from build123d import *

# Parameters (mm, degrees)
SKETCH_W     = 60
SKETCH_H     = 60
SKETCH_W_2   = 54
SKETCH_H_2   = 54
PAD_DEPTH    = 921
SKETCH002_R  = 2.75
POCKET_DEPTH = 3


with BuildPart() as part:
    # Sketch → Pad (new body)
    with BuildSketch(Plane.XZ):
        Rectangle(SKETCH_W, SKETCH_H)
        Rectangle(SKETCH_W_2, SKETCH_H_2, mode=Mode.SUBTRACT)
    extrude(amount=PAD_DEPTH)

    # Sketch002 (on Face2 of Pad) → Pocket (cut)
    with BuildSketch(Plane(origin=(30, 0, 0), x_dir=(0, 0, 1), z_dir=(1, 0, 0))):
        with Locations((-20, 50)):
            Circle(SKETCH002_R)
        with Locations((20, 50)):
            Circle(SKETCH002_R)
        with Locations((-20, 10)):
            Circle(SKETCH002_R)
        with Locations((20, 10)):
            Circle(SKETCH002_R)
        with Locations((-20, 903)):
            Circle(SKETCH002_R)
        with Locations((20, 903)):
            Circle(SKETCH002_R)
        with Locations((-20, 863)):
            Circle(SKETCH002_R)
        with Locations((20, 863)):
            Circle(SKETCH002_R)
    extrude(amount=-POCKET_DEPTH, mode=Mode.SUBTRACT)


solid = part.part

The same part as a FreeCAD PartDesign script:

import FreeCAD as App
import Part
import Sketcher

V = App.Vector
Q = App.Units.Quantity

doc = App.newDocument("Part")
params = doc.addObject("Spreadsheet::Sheet", "Params")
for row, (alias, value) in enumerate([
    ("sketch1_width", "60 mm"),
    ("sketch1_width2", "54 mm"),
    ("pad1_length", "921 mm"),
    ("sketch2_diameter", "5.5 mm"),
    ("pocket1_length", "3 mm"),
], start=1):
    params.set(f"A{row}", alias)
    params.set(f"B{row}", "=" + value)
    params.setAlias(f"B{row}", alias)

body = doc.addObject("PartDesign::Body", "Body")

# Sketch on XZ plane
sketch1 = body.newObject("Sketcher::SketchObject", "Sketch")
sketch1.AttachmentSupport = (doc.getObject("XZ_Plane"), [""])
sketch1.MapMode = "FlatFace"
sketch1.addGeometry([
    Part.LineSegment(V(-30, 30, 0), V(-30, -30, 0)),  # 0
    Part.LineSegment(V(-30, -30, 0), V(30, -30, 0)),  # 1
    Part.LineSegment(V(30, -30, 0), V(30, 30, 0)),  # 2
    Part.LineSegment(V(30, 30, 0), V(-30, 30, 0)),  # 3
    Part.LineSegment(V(27, -27, 0), V(-27, -27, 0)),  # 4
    Part.LineSegment(V(-27, -27, 0), V(-27, 27, 0)),  # 5
    Part.LineSegment(V(-27, 27, 0), V(27, 27, 0)),  # 6
    Part.LineSegment(V(27, 27, 0), V(27, -27, 0)),  # 7
], False)
sketch1.addConstraint([
    Sketcher.Constraint("Coincident", 0, 2, 1, 1),
    Sketcher.Constraint("Coincident", 1, 2, 2, 1),
    Sketcher.Constraint("Coincident", 2, 2, 3, 1),
    Sketcher.Constraint("Coincident", 3, 2, 0, 1),
    Sketcher.Constraint("Coincident", 4, 2, 5, 1),
    Sketcher.Constraint("Coincident", 5, 2, 6, 1),
    Sketcher.Constraint("Coincident", 6, 2, 7, 1),
    Sketcher.Constraint("Coincident", 7, 2, 4, 1),
    Sketcher.Constraint("Vertical", 0),
    Sketcher.Constraint("Horizontal", 1),
    Sketcher.Constraint("Vertical", 2),
    Sketcher.Constraint("Horizontal", 3),
    Sketcher.Constraint("Horizontal", 4),
    Sketcher.Constraint("Vertical", 5),
    Sketcher.Constraint("Horizontal", 6),
    Sketcher.Constraint("Vertical", 7),
    Sketcher.Constraint("Symmetric", 0, 2, 2, 2, -1, 1),
    Sketcher.Constraint("Symmetric", 4, 2, 6, 2, -1, 1),
    Sketcher.Constraint("Equal", 3, 0),
    Sketcher.Constraint("Equal", 6, 5),
    Sketcher.Constraint("DistanceX", 1, 1, 1, 2, Q("60 mm")),
    Sketcher.Constraint("DistanceX", 4, 2, 4, 1, Q("54 mm")),
])
sketch1.setExpression("Constraints[20]", "Params.sketch1_width")
sketch1.setExpression("Constraints[21]", "Params.sketch1_width2")
pad1 = body.newObject("PartDesign::Pad", "Pad")
pad1.Profile = sketch1
pad1.setExpression("Length", "Params.pad1_length")

# Sketch on YZ plane
sketch2 = body.newObject("Sketcher::SketchObject", "Sketch001")
sketch2.AttachmentSupport = (doc.getObject("YZ_Plane"), [""])
sketch2.MapMode = "FlatFace"
sketch2.AttachmentOffset = App.Placement(V(0, 0, 30), App.Rotation())
sketch2.addGeometry([
    Part.Circle(V(-50, -20, 0), V(0, 0, 1), 2.8),  # 0
    Part.Circle(V(-50, 20, 0), V(0, 0, 1), 2.8),  # 1
    Part.Circle(V(-10, -20, 0), V(0, 0, 1), 2.8),  # 2
    Part.Circle(V(-10, 20, 0), V(0, 0, 1), 2.8),  # 3
    Part.Circle(V(-903, -20, 0), V(0, 0, 1), 2.8),  # 4
    Part.Circle(V(-903, 20, 0), V(0, 0, 1), 2.8),  # 5
    Part.Circle(V(-863, -20, 0), V(0, 0, 1), 2.8),  # 6
    Part.Circle(V(-863, 20, 0), V(0, 0, 1), 2.8),  # 7
], False)
sketch2.addConstraint([
    Sketcher.Constraint("Equal", 0, 1),
    Sketcher.Constraint("Equal", 1, 2),
    Sketcher.Constraint("Equal", 2, 3),
    Sketcher.Constraint("Equal", 3, 4),
    Sketcher.Constraint("Equal", 4, 5),
    Sketcher.Constraint("Equal", 5, 6),
    Sketcher.Constraint("Equal", 6, 7),
    Sketcher.Constraint("Symmetric", 0, 3, 1, 3, -1),
    Sketcher.Constraint("Symmetric", 2, 3, 3, 3, -1),
    Sketcher.Constraint("Symmetric", 4, 3, 5, 3, -1),
    Sketcher.Constraint("Symmetric", 6, 3, 7, 3, -1),
    Sketcher.Constraint("Horizontal", 0, 3, 2, 3),
    Sketcher.Constraint("Horizontal", 2, 3, 4, 3),
    Sketcher.Constraint("Horizontal", 4, 3, 6, 3),
    Sketcher.Constraint("Diameter", 0, Q("5.5 mm")),
    Sketcher.Constraint("DistanceX", 0, 3, -1, 1, Q("50 mm")),
    Sketcher.Constraint("DistanceY", 0, 3, -1, 1, Q("20 mm")),
    Sketcher.Constraint("DistanceX", 2, 3, -1, 1, Q("10 mm")),
    Sketcher.Constraint("DistanceX", 4, 3, -1, 1, Q("903 mm")),
    Sketcher.Constraint("DistanceX", 6, 3, -1, 1, Q("863 mm")),
])
sketch2.setExpression("Constraints[14]", "Params.sketch2_diameter")
pocket1 = body.newObject("PartDesign::Pocket", "Pocket")
pocket1.Profile = sketch2
pocket1.setExpression("Length", "Params.pocket1_length")

doc.recompute()
